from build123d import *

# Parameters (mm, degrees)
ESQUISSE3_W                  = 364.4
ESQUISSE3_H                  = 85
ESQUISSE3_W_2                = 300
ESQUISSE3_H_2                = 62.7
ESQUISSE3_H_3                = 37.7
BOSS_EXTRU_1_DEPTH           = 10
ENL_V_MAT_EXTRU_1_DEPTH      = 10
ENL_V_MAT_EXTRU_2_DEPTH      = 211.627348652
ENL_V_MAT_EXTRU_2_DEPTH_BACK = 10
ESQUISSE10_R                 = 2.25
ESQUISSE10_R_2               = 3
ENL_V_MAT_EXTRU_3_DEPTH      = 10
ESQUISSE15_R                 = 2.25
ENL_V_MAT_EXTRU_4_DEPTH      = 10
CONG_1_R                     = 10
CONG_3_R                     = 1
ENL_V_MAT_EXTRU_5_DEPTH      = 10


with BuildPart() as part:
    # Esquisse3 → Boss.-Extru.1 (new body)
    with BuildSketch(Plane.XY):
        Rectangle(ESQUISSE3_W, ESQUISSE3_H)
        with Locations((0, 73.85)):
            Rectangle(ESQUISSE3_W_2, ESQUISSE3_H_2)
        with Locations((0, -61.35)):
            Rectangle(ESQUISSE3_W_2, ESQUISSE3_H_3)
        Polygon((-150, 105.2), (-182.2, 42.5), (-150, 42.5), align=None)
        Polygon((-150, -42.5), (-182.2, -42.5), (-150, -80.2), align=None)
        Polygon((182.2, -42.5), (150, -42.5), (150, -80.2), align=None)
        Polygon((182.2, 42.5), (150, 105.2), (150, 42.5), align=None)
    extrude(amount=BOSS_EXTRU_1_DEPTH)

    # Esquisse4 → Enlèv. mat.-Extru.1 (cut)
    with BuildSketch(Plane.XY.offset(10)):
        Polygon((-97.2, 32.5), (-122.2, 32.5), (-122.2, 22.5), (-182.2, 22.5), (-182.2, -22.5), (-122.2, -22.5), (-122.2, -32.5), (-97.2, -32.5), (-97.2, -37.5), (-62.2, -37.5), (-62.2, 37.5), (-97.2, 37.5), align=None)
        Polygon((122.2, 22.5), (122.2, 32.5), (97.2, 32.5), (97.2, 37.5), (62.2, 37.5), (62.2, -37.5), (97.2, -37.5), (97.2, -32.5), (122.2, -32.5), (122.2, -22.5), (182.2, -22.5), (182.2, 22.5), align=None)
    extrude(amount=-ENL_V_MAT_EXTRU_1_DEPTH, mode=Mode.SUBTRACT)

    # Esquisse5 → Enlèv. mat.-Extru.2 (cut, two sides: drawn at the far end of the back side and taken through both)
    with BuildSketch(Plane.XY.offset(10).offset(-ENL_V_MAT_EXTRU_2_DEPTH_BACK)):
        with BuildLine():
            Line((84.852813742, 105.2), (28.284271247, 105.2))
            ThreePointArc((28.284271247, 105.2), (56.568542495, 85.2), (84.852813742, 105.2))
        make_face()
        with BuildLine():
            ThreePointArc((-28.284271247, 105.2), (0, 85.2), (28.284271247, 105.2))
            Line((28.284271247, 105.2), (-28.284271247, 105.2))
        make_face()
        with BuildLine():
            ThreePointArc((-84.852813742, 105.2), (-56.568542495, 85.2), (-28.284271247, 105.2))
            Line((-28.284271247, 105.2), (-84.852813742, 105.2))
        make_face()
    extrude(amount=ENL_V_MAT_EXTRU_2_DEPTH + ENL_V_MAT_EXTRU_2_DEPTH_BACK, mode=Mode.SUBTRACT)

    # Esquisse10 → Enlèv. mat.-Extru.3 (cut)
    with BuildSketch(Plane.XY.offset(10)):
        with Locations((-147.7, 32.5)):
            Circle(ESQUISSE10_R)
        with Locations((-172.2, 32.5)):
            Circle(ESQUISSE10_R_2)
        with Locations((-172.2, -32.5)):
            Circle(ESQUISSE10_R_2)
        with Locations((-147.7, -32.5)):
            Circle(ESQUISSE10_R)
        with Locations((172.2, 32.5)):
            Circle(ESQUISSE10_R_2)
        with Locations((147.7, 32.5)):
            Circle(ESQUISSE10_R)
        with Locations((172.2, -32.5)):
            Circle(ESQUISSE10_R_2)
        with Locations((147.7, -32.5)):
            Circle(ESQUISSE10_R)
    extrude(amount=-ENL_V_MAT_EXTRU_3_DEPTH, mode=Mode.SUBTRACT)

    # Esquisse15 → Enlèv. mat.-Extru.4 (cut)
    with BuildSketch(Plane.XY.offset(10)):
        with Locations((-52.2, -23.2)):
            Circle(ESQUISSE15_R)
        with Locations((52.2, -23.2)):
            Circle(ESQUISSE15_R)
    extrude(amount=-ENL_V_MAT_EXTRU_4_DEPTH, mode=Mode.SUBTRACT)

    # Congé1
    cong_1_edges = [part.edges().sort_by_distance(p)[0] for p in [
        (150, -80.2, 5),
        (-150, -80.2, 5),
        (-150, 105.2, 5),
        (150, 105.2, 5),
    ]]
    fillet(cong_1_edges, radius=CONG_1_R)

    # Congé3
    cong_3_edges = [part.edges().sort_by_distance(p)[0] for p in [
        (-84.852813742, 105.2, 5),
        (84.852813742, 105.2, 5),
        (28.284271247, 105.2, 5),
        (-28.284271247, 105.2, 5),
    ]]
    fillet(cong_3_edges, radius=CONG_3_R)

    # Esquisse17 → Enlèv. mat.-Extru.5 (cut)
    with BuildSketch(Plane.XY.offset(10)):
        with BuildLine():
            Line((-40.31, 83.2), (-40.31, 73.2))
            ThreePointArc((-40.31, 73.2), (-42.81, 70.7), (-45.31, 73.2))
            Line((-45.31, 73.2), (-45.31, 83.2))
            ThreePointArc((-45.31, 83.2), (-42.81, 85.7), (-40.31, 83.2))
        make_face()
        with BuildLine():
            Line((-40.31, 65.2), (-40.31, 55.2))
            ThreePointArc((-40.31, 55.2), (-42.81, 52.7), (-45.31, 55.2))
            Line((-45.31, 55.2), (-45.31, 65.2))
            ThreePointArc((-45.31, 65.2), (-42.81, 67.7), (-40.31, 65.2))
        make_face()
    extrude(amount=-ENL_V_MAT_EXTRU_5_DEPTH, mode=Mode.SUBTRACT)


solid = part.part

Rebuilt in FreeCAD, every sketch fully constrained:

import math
import FreeCAD as App
import Part
import Sketcher

V = App.Vector


def edges_at(feature, points):
    """Names of the edges that pass closest to the given points."""
    edges = feature.Shape.Edges
    near = lambda p: min(range(len(edges)), key=lambda i: edges[i].distToShape(Part.Vertex(*p))[0])
    return sorted({f"Edge{near(p) + 1}" for p in points})


def add_polygon(sketch, points):
    """Adds a closed chain of lines whose ends are joined by coincident constraints."""
    first, n = sketch.GeometryCount, len(points)
    for a, b in zip(points, points[1:] + points[:1]):
        sketch.addGeometry(Part.LineSegment(App.Vector(*a, 0), App.Vector(*b, 0)), False)
    for i in range(n):
        sketch.addConstraint(Sketcher.Constraint("Coincident", first + i, 2, first + (i + 1) % n, 1))

doc = App.newDocument("Part")
body = doc.addObject("PartDesign::Body", "Body")

sketch1 = doc.addObject("Sketcher::SketchObject", "Sketch")
body.addObject(sketch1)
sketch1.AttachmentSupport = (doc.XY_Plane, [""])
sketch1.MapMode = "FlatFace"
add_polygon(sketch1, [(-182, 42), (-182, -42), (-150, -80), (150, -80), (182, -42), (182, 42), (150, 105), (-150, 105)])
sketch1.addConstraint([
    Sketcher.Constraint("Vertical", 0),
    Sketcher.Constraint("Horizontal", 2),
    Sketcher.Constraint("Vertical", 4),
    Sketcher.Constraint("Horizontal", 6),
    Sketcher.Constraint("Symmetric", 0, 2, 4, 2, -1, 1),
    Sketcher.Constraint("Horizontal", 0, 2, 3, 2),
    Sketcher.Constraint("Horizontal", 4, 2, 7, 2),
    Sketcher.Constraint("Vertical", 2, 2, 5, 2),
    Sketcher.Constraint("Vertical", 1, 2, 6, 2),
    Sketcher.Constraint("Equal", 1, 3),
    Sketcher.Constraint("DistanceX", 2, 1, 2, 2, 300.0),
    Sketcher.Constraint("DistanceY", 0, 2, 0, 1, 85.0),
    Sketcher.Constraint("DistanceX", 0, 2, -1, 1, 182.2),
    Sketcher.Constraint("DistanceY", 1, 2, -1, 1, 80.2),
    Sketcher.Constraint("DistanceY", -1, 1, 5, 2, 105.2),
])
pad1 = doc.addObject("PartDesign::Pad", "Pad")
body.addObject(pad1)
pad1.Profile = sketch1
pad1.Length = 10

sketch2 = doc.addObject("Sketcher::SketchObject", "Sketch001")
body.addObject(sketch2)
sketch2.AttachmentSupport = (doc.XY_Plane, [""])
sketch2.MapMode = "FlatFace"
sketch2.AttachmentOffset = App.Placement(V(0, 0, 10), App.Rotation())
add_polygon(sketch2, [(-97, 32), (-122, 32), (-122, 22), (-182, 22), (-182, -22), (-122, -22), (-122, -32), (-97, -32), (-97, -38), (-62, -38), (-62, 38), (-97, 38)])
add_polygon(sketch2, [(122, 22), (122, 32), (97, 32), (97, 38), (62, 38), (62, -38), (97, -38), (97, -32), (122, -32), (122, -22), (182, -22), (182, 22)])
sketch2.addConstraint([
    Sketcher.Constraint("Horizontal", 0),
    Sketcher.Constraint("Vertical", 1),
    Sketcher.Constraint("Horizontal", 2),
    Sketcher.Constraint("Vertical", 3),
    Sketcher.Constraint("Horizontal", 4),
    Sketcher.Constraint("Vertical", 5),
    Sketcher.Constraint("Horizontal", 6),
    Sketcher.Constraint("Vertical", 7),
    Sketcher.Constraint("Horizontal", 8),
    Sketcher.Constraint("Vertical", 9),
    Sketcher.Constraint("Horizontal", 10),
    Sketcher.Constraint("Vertical", 11),
    Sketcher.Constraint("Vertical", 12),
    Sketcher.Constraint("Horizontal", 13),
    Sketcher.Constraint("Vertical", 14),
    Sketcher.Constraint("Horizontal", 15),
    Sketcher.Constraint("Vertical", 16),
    Sketcher.Constraint("Horizontal", 17),
    Sketcher.Constraint("Vertical", 18),
    Sketcher.Constraint("Horizontal", 19),
    Sketcher.Constraint("Vertical", 20),
    Sketcher.Constraint("Horizontal", 21),
    Sketcher.Constraint("Vertical", 22),
    Sketcher.Constraint("Horizontal", 23),
    Sketcher.Constraint("Symmetric", 5, 2, 12, 2, -1, 1),
    Sketcher.Constraint("Symmetric", 7, 2, 14, 2, -1, 1),
    Sketcher.Constraint("Symmetric", 9, 2, 16, 2, -1, 1),
    Sketcher.Constraint("Symmetric", 11, 2, 18, 2, -1, 1),
    Sketcher.Constraint("Symmetric", 1, 2, 20, 2, -1, 1),
    Sketcher.Constraint("Symmetric", 3, 2, 22, 2, -1, 1),
    Sketcher.Constraint("Symmetric", 0, 2, 12, 2, -2),
    Sketcher.Constraint("Symmetric", 10, 2, 14, 2, -2),
    Sketcher.Constraint("Horizontal", 4, 2, 20, 2),
    Sketcher.Constraint("DistanceX", 0, 2, 0, 1, 25.0),
    Sketcher.Constraint("DistanceX", 2, 2, 2, 1, 60.0),
    Sketcher.Constraint("DistanceX", 8, 1, 8, 2, 35.0),
    Sketcher.Constraint("DistanceY", 1, 2, 1, 1, 10.0),
    Sketcher.Constraint("DistanceY", 3, 2, 3, 1, 45.0),
    Sketcher.Constraint("DistanceY", 7, 2, 7, 1, 5.0),
    Sketcher.Constraint("DistanceX", 0, 2, -1, 1, 122.2),
])
pocket1 = doc.addObject("PartDesign::Pocket", "Pocket")
body.addObject(pocket1)
pocket1.Profile = sketch2
pocket1.Length = 10

sketch3 = doc.addObject("Sketcher::SketchObject", "Sketch002")
body.addObject(sketch3)
sketch3.AttachmentSupport = (doc.XY_Plane, [""])
sketch3.MapMode = "FlatFace"
sketch3.AttachmentOffset = App.Placement(V(0, 0, 10), App.Rotation())
sketch3.addGeometry([
    Part.LineSegment(V(85, 105, 0), V(28, 105, 0)),
    Part.ArcOfCircle(Part.Circle(V(57, 115, 0), V(0, 0, 1), 30), math.radians(-161), math.radians(-19)),
    Part.ArcOfCircle(Part.Circle(V(0, 115, 0), V(0, 0, 1), 30), math.radians(-161), math.radians(-19)),
    Part.LineSegment(V(28, 105, 0), V(-28, 105, 0)),
    Part.ArcOfCircle(Part.Circle(V(-57, 115, 0), V(0, 0, 1), 30), math.radians(-161), math.radians(-19)),
    Part.LineSegment(V(-28, 105, 0), V(-85, 105, 0)),
], False)
sketch3.addConstraint([
    Sketcher.Constraint("Coincident", 0, 1, 1, 2),
    Sketcher.Constraint("Coincident", 1, 1, 0, 2),
    Sketcher.Constraint("Coincident", 2, 1, 3, 2),
    Sketcher.Constraint("Coincident", 3, 1, 2, 2),
    Sketcher.Constraint("Coincident", 4, 1, 5, 2),
    Sketcher.Constraint("Coincident", 5, 1, 4, 2),
    Sketcher.Constraint("Horizontal", 0),
    Sketcher.Constraint("Horizontal", 3),
    Sketcher.Constraint("Horizontal", 5),
    Sketcher.Constraint("Coincident", 3, 1, 1, 1),
    Sketcher.Constraint("Coincident", 5, 1, 2, 1),
    Sketcher.Constraint("Equal", 1, 2),
    Sketcher.Constraint("Equal", 2, 4),
    Sketcher.Constraint("Symmetric", 1, 3, 4, 3, -2),
    Sketcher.Constraint("Horizontal", 1, 3, 2, 3),
    Sketcher.Constraint("Radius", 1, 30.0),
    Sketcher.Constraint("DistanceY", 0, 1, 1, 3, 10.0),
    Sketcher.Constraint("DistanceY", -1, 1, 1, 3, 115.2),
])
pocket2 = doc.addObject("PartDesign::Pocket", "Pocket001")
body.addObject(pocket2)
pocket2.Profile = sketch3
pocket2.Type = "ThroughAll"
pocket2.Midplane = True

sketch4 = doc.addObject("Sketcher::SketchObject", "Sketch003")
body.addObject(sketch4)
sketch4.AttachmentSupport = (doc.XY_Plane, [""])
sketch4.MapMode = "FlatFace"
sketch4.AttachmentOffset = App.Placement(V(0, 0, 10), App.Rotation())
sketch4.addGeometry([
    Part.Circle(V(-147.7, 32.5, 0), V(0, 0, 1), 2.2),
    Part.Circle(V(-172.2, 32.5, 0), V(0, 0, 1), 3),
    Part.Circle(V(-172.2, -32.5, 0), V(0, 0, 1), 3),
    Part.Circle(V(-147.7, -32.5, 0), V(0, 0, 1), 2.2),
    Part.Circle(V(172.2, 32.5, 0), V(0, 0, 1), 3),
    Part.Circle(V(147.7, 32.5, 0), V(0, 0, 1), 2.2),
    Part.Circle(V(172.2, -32.5, 0), V(0, 0, 1), 3),
    Part.Circle(V(147.7, -32.5, 0), V(0, 0, 1), 2.2),
], False)
sketch4.addConstraint([
    Sketcher.Constraint("Equal", 1, 2),
    Sketcher.Constraint("Equal", 0, 3),
    Sketcher.Constraint("Equal", 2, 4),
    Sketcher.Constraint("Equal", 3, 5),
    Sketcher.Constraint("Equal", 4, 6),
    Sketcher.Constraint("Equal", 5, 7),
    Sketcher.Constraint("Symmetric", 2, 3, 4, 3, -1, 1),
    Sketcher.Constraint("Symmetric", 3, 3, 5, 3, -1, 1),
    Sketcher.Constraint("Symmetric", 1, 3, 6, 3, -1, 1),
    Sketcher.Constraint("Symmetric", 0, 3, 7, 3, -1, 1),
    Sketcher.Constraint("Symmetric", 1, 3, 4, 3, -2),
    Sketcher.Constraint("Symmetric", 0, 3, 5, 3, -2),
    Sketcher.Constraint("Horizontal", 0, 3, 1, 3),
    Sketcher.Constraint("Diameter", 1, 6.0),
    Sketcher.Constraint("Diameter", 0, 4.5),
    Sketcher.Constraint("DistanceY", 2, 3, 1, 3, 65.0),
    Sketcher.Constraint("DistanceX", 0, 3, -1, 1, 147.7),
    Sketcher.Constraint("DistanceX", 1, 3, -1, 1, 172.2),
])
pocket3 = doc.addObject("PartDesign::Pocket", "Pocket002")
body.addObject(pocket3)
pocket3.Profile = sketch4
pocket3.Length = 10

sketch5 = doc.addObject("Sketcher::SketchObject", "Sketch004")
body.addObject(sketch5)
sketch5.AttachmentSupport = (doc.XY_Plane, [""])
sketch5.MapMode = "FlatFace"
sketch5.AttachmentOffset = App.Placement(V(0, 0, 10), App.Rotation())
sketch5.addGeometry([
    Part.Circle(V(-52.2, -23.2, 0), V(0, 0, 1), 2.2),
    Part.Circle(V(52.2, -23.2, 0), V(0, 0, 1), 2.2),
], False)
sketch5.addConstraint([
    Sketcher.Constraint("Equal", 0, 1),
    Sketcher.Constraint("Symmetric", 0, 3, 1, 3, -2),
    Sketcher.Constraint("Diameter", 0, 4.5),
    Sketcher.Constraint("DistanceX", 0, 3, -1, 1, 52.2),
    Sketcher.Constraint("DistanceY", 0, 3, -1, 1, 23.2),
])
pocket4 = doc.addObject("PartDesign::Pocket", "Pocket003")
body.addObject(pocket4)
pocket4.Profile = sketch5
pocket4.Length = 10
doc.recompute()

fillet = doc.addObject("PartDesign::Fillet", "Fillet")
body.addObject(fillet)
fillet.Base = (pocket4, edges_at(pocket4, [
    (150, -80.2, 5),
    (-150, -80.2, 5),
    (-150, 105.2, 5),
    (150, 105.2, 5),
]))
fillet.Radius = 10
doc.recompute()

fillet2 = doc.addObject("PartDesign::Fillet", "Fillet001")
body.addObject(fillet2)
fillet2.Base = (fillet, edges_at(fillet, [
    (-84.853, 105.2, 5),
    (84.853, 105.2, 5),
    (28.284, 105.2, 5),
    (-28.284, 105.2, 5),
]))
fillet2.Radius = 1

sketch6 = doc.addObject("Sketcher::SketchObject", "Sketch005")
body.addObject(sketch6)
sketch6.AttachmentSupport = (doc.XY_Plane, [""])
sketch6.MapMode = "FlatFace"
sketch6.AttachmentOffset = App.Placement(V(0, 0, 10), App.Rotation())
sketch6.addGeometry([
    Part.LineSegment(V(-40.3, 73.2, 0), V(-40.3, 83.2, 0)),
    Part.ArcOfCircle(Part.Circle(V(-42.8, 83.2, 0), V(0, 0, 1), 2.5), math.radians(0), math.radians(180)),
    Part.LineSegment(V(-45.3, 83.2, 0), V(-45.3, 73.2, 0)),
    Part.ArcOfCircle(Part.Circle(V(-42.8, 73.2, 0), V(0, 0, 1), 2.5), math.radians(180), math.radians(360)),
    Part.LineSegment(V(-40.3, 55.2, 0), V(-40.3, 65.2, 0)),
    Part.ArcOfCircle(Part.Circle(V(-42.8, 65.2, 0), V(0, 0, 1), 2.5), math.radians(0), math.radians(180)),
    Part.LineSegment(V(-45.3, 65.2, 0), V(-45.3, 55.2, 0)),
    Part.ArcOfCircle(Part.Circle(V(-42.8, 55.2, 0), V(0, 0, 1), 2.5), math.radians(180), math.radians(360)),
], False)
sketch6.addConstraint([
    Sketcher.Constraint("Tangent", 0, 2, 1, 1),
    Sketcher.Constraint("Tangent", 1, 2, 2, 1),
    Sketcher.Constraint("Tangent", 2, 2, 3, 1),
    Sketcher.Constraint("Tangent", 3, 2, 0, 1),
    Sketcher.Constraint("Tangent", 4, 2, 5, 1),
    Sketcher.Constraint("Tangent", 5, 2, 6, 1),
    Sketcher.Constraint("Tangent", 6, 2, 7, 1),
    Sketcher.Constraint("Tangent", 7, 2, 4, 1),
    Sketcher.Constraint("Vertical", 0),
    Sketcher.Constraint("Vertical", 2),
    Sketcher.Constraint("Vertical", 4),
    Sketcher.Constraint("Vertical", 6),
    Sketcher.Constraint("Equal", 3, 5),
    Sketcher.Constraint("Vertical", 3, 3, 5, 3),
    Sketcher.Constraint("Equal", 2, 4),
    Sketcher.Constraint("Radius", 1, 2.5),
    Sketcher.Constraint("DistanceY", 0, 1, 0, 2, 10.0),
    Sketcher.Constraint("DistanceY", 5, 3, 3, 3, 8.0),
    Sketcher.Constraint("DistanceY", -1, 1, 1, 3, 83.2),
    Sketcher.Constraint("DistanceX", 1, 3, -1, 1, 42.81),
])
pocket5 = doc.addObject("PartDesign::Pocket", "Pocket004")
body.addObject(pocket5)
pocket5.Profile = sketch6
pocket5.Length = 10

doc.recompute()
